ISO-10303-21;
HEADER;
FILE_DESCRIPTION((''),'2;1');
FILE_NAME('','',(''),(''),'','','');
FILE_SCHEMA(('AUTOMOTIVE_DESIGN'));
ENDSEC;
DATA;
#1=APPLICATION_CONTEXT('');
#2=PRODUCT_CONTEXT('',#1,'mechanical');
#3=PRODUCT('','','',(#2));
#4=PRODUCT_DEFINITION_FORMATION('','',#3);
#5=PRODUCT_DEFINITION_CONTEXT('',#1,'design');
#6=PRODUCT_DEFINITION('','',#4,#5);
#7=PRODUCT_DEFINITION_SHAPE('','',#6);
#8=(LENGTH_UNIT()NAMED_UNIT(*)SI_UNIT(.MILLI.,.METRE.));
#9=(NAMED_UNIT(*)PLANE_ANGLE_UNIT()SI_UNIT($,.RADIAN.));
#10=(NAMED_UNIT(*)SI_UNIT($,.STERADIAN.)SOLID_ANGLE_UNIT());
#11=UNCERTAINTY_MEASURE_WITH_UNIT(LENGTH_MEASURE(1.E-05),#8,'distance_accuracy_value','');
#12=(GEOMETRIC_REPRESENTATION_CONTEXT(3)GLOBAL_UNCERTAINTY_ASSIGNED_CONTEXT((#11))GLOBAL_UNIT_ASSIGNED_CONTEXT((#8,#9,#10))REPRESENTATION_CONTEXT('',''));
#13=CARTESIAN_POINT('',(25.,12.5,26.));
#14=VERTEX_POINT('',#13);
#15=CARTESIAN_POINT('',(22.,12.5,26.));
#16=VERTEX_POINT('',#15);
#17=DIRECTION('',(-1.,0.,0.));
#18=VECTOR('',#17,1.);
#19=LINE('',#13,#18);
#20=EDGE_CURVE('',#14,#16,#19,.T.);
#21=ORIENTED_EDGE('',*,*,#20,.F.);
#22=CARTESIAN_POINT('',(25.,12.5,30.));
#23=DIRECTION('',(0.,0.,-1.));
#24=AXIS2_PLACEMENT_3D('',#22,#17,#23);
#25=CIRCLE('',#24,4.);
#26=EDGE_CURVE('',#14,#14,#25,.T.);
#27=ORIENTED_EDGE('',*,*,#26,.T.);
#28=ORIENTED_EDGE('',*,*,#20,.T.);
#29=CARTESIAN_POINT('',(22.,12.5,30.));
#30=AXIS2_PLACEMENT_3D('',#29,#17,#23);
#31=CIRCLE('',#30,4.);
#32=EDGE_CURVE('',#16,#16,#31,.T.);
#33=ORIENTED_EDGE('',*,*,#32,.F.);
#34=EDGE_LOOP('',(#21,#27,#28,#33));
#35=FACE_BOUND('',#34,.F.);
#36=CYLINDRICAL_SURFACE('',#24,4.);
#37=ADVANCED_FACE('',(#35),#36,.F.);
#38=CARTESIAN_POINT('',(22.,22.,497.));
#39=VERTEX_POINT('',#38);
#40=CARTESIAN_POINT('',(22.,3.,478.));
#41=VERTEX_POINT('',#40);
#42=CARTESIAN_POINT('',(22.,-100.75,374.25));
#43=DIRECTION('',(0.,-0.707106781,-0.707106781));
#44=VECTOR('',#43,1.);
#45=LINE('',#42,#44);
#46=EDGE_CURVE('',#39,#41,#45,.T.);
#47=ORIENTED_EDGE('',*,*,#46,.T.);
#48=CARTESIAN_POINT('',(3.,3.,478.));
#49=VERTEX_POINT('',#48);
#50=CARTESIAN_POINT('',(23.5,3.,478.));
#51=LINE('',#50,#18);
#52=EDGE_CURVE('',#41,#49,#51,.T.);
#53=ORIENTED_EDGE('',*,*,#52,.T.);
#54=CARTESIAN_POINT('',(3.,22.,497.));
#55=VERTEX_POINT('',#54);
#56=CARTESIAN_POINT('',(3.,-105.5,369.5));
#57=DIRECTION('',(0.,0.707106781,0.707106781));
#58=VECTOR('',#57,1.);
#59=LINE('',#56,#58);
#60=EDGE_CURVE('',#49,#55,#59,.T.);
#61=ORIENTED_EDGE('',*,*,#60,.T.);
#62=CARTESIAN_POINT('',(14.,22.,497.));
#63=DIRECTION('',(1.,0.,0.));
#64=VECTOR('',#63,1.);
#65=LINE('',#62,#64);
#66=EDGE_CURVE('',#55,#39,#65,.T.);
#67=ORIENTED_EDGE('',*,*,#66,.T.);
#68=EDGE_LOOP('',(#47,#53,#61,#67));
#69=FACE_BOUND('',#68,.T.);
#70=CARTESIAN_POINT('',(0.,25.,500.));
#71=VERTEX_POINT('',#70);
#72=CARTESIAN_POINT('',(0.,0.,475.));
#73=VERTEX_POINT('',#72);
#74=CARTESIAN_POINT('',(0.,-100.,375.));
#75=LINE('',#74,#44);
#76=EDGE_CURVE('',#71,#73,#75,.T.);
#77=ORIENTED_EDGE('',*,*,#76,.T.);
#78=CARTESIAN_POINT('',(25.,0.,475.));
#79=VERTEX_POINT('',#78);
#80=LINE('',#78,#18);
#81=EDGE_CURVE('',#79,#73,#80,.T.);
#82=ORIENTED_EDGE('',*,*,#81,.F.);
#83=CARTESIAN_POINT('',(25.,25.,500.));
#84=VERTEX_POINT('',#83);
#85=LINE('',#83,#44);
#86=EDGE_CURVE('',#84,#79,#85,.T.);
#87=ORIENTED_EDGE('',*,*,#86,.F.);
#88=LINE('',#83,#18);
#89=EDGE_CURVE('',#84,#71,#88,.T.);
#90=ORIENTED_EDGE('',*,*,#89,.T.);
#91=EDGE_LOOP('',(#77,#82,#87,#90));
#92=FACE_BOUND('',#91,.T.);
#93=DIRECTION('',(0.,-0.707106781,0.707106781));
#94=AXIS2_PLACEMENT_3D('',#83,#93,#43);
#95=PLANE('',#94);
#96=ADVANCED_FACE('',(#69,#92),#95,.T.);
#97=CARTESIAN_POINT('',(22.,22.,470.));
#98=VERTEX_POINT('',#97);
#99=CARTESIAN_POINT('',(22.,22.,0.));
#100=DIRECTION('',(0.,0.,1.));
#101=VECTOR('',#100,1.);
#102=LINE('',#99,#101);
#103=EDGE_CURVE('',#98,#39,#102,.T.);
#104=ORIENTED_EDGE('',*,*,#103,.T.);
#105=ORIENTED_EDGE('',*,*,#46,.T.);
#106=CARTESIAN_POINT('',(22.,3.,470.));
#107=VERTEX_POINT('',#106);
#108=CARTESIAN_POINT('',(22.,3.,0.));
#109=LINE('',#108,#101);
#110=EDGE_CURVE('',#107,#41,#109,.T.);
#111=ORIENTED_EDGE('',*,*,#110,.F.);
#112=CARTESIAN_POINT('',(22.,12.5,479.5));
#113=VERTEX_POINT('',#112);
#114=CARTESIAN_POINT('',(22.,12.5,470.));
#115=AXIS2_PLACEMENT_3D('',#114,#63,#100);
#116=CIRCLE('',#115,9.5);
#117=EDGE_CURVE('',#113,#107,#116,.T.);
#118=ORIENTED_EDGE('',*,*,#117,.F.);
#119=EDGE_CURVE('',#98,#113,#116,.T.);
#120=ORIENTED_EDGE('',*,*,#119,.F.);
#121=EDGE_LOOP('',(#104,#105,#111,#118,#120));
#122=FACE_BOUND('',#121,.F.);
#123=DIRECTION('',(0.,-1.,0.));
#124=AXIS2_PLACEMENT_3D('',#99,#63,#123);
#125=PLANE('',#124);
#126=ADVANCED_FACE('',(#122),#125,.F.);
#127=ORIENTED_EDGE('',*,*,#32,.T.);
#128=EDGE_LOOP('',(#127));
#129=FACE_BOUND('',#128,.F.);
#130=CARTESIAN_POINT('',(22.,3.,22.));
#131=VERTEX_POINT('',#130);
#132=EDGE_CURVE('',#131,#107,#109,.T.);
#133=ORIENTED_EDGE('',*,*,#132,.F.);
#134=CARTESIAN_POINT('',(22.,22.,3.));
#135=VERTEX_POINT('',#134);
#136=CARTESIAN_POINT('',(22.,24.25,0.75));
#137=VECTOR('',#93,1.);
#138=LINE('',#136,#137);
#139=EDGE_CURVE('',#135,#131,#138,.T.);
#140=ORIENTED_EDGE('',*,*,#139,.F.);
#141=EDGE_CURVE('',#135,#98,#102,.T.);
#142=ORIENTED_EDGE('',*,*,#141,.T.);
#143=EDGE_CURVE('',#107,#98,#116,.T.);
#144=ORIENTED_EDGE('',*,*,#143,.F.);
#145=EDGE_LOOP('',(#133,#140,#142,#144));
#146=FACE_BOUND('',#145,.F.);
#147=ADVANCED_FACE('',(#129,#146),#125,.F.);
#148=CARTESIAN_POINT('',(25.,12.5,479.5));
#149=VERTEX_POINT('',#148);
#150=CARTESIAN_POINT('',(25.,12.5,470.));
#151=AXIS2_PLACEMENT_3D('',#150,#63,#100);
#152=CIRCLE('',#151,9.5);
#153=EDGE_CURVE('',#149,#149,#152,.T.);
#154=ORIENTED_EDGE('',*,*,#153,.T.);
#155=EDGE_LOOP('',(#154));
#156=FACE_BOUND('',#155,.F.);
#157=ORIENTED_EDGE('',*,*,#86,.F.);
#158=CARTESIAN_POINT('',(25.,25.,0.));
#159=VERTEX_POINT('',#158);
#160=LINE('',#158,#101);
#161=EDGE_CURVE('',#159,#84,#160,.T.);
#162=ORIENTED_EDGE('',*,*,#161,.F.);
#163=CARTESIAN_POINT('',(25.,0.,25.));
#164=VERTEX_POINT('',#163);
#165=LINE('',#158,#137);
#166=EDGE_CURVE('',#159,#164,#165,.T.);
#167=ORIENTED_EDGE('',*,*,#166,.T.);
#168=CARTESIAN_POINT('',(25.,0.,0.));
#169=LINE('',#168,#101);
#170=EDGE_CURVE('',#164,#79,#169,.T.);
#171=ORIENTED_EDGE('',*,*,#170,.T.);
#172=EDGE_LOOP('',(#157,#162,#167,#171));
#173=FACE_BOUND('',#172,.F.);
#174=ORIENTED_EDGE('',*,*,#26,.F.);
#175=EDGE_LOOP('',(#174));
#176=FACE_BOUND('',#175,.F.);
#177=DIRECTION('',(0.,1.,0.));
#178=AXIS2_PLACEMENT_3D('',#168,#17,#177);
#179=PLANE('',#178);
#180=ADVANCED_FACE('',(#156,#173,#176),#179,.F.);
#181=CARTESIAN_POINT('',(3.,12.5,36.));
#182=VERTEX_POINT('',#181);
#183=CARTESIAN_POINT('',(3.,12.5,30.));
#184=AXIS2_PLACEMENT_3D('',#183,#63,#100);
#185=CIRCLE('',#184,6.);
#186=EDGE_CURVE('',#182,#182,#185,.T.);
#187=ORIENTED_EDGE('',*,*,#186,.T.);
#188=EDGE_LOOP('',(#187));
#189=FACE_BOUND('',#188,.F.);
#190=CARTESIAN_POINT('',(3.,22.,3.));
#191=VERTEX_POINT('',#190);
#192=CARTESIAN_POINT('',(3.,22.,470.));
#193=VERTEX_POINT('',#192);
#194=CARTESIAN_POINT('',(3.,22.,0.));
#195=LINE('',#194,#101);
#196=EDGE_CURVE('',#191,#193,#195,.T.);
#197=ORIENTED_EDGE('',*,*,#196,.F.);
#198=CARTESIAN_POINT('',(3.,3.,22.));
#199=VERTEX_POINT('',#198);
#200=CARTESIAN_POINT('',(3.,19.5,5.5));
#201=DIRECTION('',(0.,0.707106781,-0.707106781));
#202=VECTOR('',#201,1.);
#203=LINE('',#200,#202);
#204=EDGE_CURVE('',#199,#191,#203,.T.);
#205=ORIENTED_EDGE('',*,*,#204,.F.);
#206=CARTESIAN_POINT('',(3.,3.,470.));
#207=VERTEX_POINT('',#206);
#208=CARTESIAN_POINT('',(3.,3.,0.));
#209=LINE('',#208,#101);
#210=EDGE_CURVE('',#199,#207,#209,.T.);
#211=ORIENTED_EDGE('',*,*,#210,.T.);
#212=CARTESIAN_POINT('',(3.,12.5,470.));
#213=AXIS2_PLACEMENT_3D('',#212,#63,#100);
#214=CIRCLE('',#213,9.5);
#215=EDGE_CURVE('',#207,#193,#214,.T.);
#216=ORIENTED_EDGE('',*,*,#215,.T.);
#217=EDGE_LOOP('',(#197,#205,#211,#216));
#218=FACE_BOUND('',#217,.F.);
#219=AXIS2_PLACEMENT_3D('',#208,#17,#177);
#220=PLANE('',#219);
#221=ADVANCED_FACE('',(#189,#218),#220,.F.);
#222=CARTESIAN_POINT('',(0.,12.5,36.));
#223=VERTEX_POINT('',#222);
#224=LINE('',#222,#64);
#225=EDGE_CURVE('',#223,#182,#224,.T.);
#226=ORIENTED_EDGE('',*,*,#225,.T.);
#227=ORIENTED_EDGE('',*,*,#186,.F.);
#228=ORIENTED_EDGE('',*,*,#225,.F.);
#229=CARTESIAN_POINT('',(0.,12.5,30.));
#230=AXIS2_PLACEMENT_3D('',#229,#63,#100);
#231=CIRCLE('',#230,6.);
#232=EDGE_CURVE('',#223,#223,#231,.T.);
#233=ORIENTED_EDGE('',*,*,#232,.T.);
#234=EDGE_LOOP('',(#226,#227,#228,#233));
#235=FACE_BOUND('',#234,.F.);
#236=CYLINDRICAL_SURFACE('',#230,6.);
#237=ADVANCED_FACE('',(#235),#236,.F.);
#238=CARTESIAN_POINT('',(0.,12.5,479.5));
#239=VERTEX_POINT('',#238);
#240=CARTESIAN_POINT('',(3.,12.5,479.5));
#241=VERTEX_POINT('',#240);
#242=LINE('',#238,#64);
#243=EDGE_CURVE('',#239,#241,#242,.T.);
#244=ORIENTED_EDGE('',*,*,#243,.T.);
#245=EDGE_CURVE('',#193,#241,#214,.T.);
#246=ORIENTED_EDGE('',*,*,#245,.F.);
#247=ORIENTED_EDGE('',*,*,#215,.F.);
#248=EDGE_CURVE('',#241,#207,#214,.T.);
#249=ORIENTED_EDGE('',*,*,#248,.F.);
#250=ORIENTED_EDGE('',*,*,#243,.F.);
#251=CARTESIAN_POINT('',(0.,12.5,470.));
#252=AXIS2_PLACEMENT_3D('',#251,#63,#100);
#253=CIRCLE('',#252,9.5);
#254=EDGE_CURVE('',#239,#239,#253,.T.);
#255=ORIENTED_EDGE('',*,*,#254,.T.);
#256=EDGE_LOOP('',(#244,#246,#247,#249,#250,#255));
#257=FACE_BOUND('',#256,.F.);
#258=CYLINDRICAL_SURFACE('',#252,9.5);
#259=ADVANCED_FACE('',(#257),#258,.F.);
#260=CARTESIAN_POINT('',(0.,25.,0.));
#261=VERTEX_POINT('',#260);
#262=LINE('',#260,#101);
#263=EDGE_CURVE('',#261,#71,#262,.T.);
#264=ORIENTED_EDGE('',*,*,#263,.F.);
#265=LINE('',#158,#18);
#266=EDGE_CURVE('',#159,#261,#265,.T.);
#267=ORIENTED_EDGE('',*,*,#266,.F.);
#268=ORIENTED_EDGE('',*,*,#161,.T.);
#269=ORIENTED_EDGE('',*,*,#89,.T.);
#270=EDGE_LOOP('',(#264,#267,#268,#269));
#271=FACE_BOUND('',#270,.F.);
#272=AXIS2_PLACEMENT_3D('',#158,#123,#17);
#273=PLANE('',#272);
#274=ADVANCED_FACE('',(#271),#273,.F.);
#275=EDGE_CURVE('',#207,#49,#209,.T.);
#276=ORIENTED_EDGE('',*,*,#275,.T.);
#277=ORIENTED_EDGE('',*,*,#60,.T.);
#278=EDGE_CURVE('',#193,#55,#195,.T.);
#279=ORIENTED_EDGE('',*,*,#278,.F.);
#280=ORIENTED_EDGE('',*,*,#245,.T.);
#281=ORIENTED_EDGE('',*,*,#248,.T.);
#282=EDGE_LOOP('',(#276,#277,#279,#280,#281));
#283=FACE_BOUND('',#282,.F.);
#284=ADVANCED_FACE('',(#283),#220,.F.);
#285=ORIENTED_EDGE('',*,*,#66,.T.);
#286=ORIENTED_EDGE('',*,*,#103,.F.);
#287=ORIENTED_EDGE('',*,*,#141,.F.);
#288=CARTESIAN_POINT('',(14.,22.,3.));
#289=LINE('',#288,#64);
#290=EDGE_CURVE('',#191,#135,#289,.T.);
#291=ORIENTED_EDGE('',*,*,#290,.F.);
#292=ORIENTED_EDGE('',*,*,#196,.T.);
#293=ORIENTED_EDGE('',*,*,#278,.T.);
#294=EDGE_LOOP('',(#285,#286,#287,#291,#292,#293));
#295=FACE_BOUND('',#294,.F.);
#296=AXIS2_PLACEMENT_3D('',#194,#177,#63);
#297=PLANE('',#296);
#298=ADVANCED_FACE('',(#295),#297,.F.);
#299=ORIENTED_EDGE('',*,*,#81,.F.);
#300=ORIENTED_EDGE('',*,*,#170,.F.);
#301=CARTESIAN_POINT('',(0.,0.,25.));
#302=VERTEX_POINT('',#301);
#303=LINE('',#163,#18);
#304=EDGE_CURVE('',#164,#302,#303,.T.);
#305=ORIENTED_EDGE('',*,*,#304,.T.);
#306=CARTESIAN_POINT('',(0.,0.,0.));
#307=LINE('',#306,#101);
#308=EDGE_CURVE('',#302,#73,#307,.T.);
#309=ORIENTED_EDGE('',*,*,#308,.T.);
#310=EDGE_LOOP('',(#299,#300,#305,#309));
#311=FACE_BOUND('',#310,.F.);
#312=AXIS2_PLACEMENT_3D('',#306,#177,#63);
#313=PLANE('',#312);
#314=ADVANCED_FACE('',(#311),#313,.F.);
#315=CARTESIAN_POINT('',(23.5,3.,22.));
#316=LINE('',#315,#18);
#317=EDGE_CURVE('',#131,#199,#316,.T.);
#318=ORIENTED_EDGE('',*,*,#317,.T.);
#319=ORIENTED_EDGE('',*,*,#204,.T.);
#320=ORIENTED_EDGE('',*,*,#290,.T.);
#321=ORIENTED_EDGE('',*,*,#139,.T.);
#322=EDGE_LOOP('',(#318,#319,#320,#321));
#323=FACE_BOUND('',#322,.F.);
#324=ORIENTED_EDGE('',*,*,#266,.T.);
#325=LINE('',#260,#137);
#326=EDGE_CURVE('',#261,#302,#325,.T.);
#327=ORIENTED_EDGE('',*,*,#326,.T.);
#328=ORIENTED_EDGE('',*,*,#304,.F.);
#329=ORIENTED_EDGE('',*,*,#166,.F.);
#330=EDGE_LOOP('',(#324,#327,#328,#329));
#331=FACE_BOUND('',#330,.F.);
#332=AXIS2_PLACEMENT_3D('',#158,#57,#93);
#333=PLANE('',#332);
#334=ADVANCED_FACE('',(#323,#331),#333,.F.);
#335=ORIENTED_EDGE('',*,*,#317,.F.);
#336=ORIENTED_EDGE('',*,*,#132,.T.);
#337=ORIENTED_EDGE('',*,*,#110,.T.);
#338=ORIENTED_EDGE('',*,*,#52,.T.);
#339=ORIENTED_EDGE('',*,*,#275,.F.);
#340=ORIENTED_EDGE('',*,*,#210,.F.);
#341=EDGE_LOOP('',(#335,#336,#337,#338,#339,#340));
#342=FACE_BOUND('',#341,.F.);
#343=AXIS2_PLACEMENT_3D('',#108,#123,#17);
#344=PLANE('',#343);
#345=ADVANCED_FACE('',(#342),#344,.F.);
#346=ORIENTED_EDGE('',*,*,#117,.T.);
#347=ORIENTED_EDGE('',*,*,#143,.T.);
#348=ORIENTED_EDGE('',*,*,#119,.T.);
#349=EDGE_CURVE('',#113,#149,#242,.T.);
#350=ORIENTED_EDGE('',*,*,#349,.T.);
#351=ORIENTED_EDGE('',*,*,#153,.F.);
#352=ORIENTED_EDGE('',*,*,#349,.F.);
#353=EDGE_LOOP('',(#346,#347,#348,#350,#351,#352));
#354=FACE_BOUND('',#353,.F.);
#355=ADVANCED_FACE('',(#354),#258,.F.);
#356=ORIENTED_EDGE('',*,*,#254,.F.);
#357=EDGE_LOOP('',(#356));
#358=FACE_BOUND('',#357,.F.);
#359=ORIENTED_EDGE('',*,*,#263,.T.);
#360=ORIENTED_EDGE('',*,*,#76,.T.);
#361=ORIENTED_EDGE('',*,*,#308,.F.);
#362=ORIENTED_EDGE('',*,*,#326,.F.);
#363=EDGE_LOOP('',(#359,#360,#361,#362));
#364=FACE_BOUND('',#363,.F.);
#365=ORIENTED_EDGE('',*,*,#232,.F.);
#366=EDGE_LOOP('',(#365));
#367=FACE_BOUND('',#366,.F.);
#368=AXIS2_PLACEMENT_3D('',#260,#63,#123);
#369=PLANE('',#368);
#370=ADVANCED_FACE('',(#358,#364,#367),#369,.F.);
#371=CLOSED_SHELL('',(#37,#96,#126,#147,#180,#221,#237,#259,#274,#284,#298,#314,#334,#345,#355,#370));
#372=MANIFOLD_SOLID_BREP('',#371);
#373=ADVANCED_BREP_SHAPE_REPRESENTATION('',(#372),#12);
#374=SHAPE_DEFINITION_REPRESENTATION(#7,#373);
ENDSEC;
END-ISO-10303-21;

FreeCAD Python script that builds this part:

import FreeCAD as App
import Part
import Sketcher


def add_polygon(sketch, points):
    """Adds a closed chain of lines whose ends are joined by coincident constraints."""
    first, n = sketch.GeometryCount, len(points)
    for a, b in zip(points, points[1:] + points[:1]):
        sketch.addGeometry(Part.LineSegment(App.Vector(*a, 0), App.Vector(*b, 0)), False)
    for i in range(n):
        sketch.addConstraint(Sketcher.Constraint("Coincident", first + i, 2, first + (i + 1) % n, 1))

doc = App.newDocument("Part")
params = doc.addObject("Spreadsheet::Sheet", "Params")
for row, (alias, value) in enumerate([
    ("sketch1_width", "25 mm"),
    ("pad1_length", "500 mm"),
    ("sketch2_width", "25 mm"),
    ("pocket1_length", "500 mm"),
    ("sketch3_diameter", "8 mm"),
    ("hole_diameter", "8 mm"),
    ("hole_depth", "8 mm"),
    ("sketch4_diameter", "12 mm"),
    ("hole2_diameter", "12 mm"),
    ("hole2_depth", "8 mm"),
    ("sketch5_diameter", "19 mm"),
    ("hole3_diameter", "19 mm"),
], start=1):
    params.set(f"A{row}", alias)
    params.set(f"B{row}", "=" + value)
    params.setAlias(f"B{row}", alias)

body = doc.addObject("PartDesign::Body", "Body")

# Sketch on XY plane
sketch1 = doc.addObject("Sketcher::SketchObject", "Sketch")
body.addObject(sketch1)
sketch1.AttachmentSupport = (doc.XY_Plane, [""])
sketch1.MapMode = "FlatFace"
add_polygon(sketch1, [(0, 25), (0, 0), (25, 0), (25, 25)])  # lines 0-3
add_polygon(sketch1, [(3, 3), (3, 22), (22, 22), (22, 3)])  # lines 4-7
sketch1.addConstraint([
    Sketcher.Constraint("Vertical", 0),
    Sketcher.Constraint("Horizontal", 1),
    Sketcher.Constraint("Vertical", 2),
    Sketcher.Constraint("Horizontal", 3),
    Sketcher.Constraint("Vertical", 4),
    Sketcher.Constraint("Horizontal", 5),
    Sketcher.Constraint("Vertical", 6),
    Sketcher.Constraint("Horizontal", 7),
    Sketcher.Constraint("Coincident", 0, 2, -1, 1),
    Sketcher.Constraint("Equal", 3, 0),
    Sketcher.Constraint("Equal", 7, 4),
    Sketcher.Constraint("DistanceX", 1, 1, 1, 2, 25.0),
    Sketcher.Constraint("DistanceX", -1, 1, 4, 2, 3.0),
    Sketcher.Constraint("DistanceY", -1, 1, 6, 2, 3.0),
    Sketcher.Constraint("DistanceY", 4, 2, 3, 2, 3.0),
])
sketch1.setExpression("Constraints[19]", "Params.sketch1_width")
pad1 = doc.addObject("PartDesign::Pad", "Pad")
body.addObject(pad1)
pad1.Profile = sketch1
pad1.setExpression("Length", "Params.pad1_length")

# Sketch on YZ plane
sketch2 = doc.addObject("Sketcher::SketchObject", "Sketch001")
body.addObject(sketch2)
sketch2.AttachmentSupport = (doc.YZ_Plane, [""])
sketch2.MapMode = "FlatFace"
sketch2.AttachmentOffset = App.Placement(App.Vector(0, 0, 25), App.Rotation())
add_polygon(sketch2, [(0, 25), (0, 0), (25, 0)])  # lines 0-2
add_polygon(sketch2, [(0, 475), (25, 500), (0, 500)])  # lines 3-5
sketch2.addConstraint([
    Sketcher.Constraint("Vertical", 0),
    Sketcher.Constraint("Horizontal", 1),
    Sketcher.Constraint("Horizontal", 4),
    Sketcher.Constraint("Vertical", 5),
    Sketcher.Constraint("Coincident", 0, 2, -1, 1),
    Sketcher.Constraint("PointOnObject", 4, 2, -2),
    Sketcher.Constraint("Perpendicular", 2, 3),
    Sketcher.Constraint("Vertical", 1, 2, 3, 2),
    Sketcher.Constraint("Equal", 4, 0),
    Sketcher.Constraint("DistanceX", 1, 1, 1, 2, 25.0),
    Sketcher.Constraint("DistanceY", -1, 1, 3, 2, 500.0),
])
sketch2.setExpression("Constraints[15]", "Params.sketch2_width")
pocket1 = doc.addObject("PartDesign::Pocket", "Pocket")
body.addObject(pocket1)
pocket1.Profile = sketch2
pocket1.setExpression("Length", "Params.pocket1_length")

# Sketch on YZ plane
sketch3 = doc.addObject("Sketcher::SketchObject", "Sketch002")
body.addObject(sketch3)
sketch3.AttachmentSupport = (doc.YZ_Plane, [""])
sketch3.MapMode = "FlatFace"
sketch3.AttachmentOffset = App.Placement(App.Vector(0, 0, 25), App.Rotation())
sketch3.addGeometry(Part.Circle(App.Vector(12.5, 30, 0), App.Vector(0, 0, 1), 4), False)
sketch3.addConstraint([
    Sketcher.Constraint("Diameter", 0, 8.0),
    Sketcher.Constraint("DistanceY", -1, 1, 0, 3, 30.0),
    Sketcher.Constraint("DistanceX", -1, 1, 0, 3, 12.5),
])
sketch3.setExpression("Constraints[0]", "Params.sketch3_diameter")
doc.recompute()
hole = doc.addObject("PartDesign::Hole", "Hole")
body.addObject(hole)
hole.Profile = sketch3
hole.ThreadType = "None"
hole.setExpression("Diameter", "Params.hole_diameter")
hole.DepthType = "Dimension"
hole.setExpression("Depth", "Params.hole_depth")
hole.DrillPoint = "Angled"
hole.DrillPointAngle = 118

# Sketch on YZ plane
sketch4 = doc.addObject("Sketcher::SketchObject", "Sketch003")
body.addObject(sketch4)
sketch4.AttachmentSupport = (doc.YZ_Plane, [""])
sketch4.MapMode = "FlatFace"
sketch4.addGeometry([
    Part.Circle(App.Vector(12, 30, 0), App.Vector(0, 0, 1), 6),
    Part.Circle(App.Vector(12, 470, 0), App.Vector(0, 0, 1), 6),
], False)
sketch4.addConstraint([
    Sketcher.Constraint("Equal", 0, 1),
    Sketcher.Constraint("Vertical", 0, 3, 1, 3),
    Sketcher.Constraint("Diameter", 0, 12.0),
    Sketcher.Constraint("DistanceY", -1, 1, 0, 3, 30.0),
    Sketcher.Constraint("DistanceY", -1, 1, 1, 3, 470.0),
    Sketcher.Constraint("DistanceX", -1, 1, 0, 3, 12.5),
])
sketch4.setExpression("Constraints[2]", "Params.sketch4_diameter")
doc.recompute()
hole2 = doc.addObject("PartDesign::Hole", "Hole001")
body.addObject(hole2)
hole2.Profile = sketch4
hole2.ThreadType = "None"
hole2.setExpression("Diameter", "Params.hole2_diameter")
hole2.DepthType = "Dimension"
hole2.setExpression("Depth", "Params.hole2_depth")
hole2.DrillPoint = "Angled"
hole2.DrillPointAngle = 118
hole2.Reversed = True

# Sketch on YZ plane
sketch5 = doc.addObject("Sketcher::SketchObject", "Sketch004")
body.addObject(sketch5)
sketch5.AttachmentSupport = (doc.YZ_Plane, [""])
sketch5.MapMode = "FlatFace"
sketch5.addGeometry(Part.Circle(App.Vector(12, 470, 0), App.Vector(0, 0, 1), 10), False)
sketch5.addConstraint([
    Sketcher.Constraint("Diameter", 0, 19.0),
    Sketcher.Constraint("DistanceY", -1, 1, 0, 3, 470.0),
    Sketcher.Constraint("DistanceX", -1, 1, 0, 3, 12.5),
])
sketch5.setExpression("Constraints[0]", "Params.sketch5_diameter")
doc.recompute()
hole3 = doc.addObject("PartDesign::Hole", "Hole002")
body.addObject(hole3)
hole3.Profile = sketch5
hole3.ThreadType = "None"
hole3.setExpression("Diameter", "Params.hole3_diameter")
hole3.DepthType = "ThroughAll"
hole3.Reversed = True

doc.recompute()
